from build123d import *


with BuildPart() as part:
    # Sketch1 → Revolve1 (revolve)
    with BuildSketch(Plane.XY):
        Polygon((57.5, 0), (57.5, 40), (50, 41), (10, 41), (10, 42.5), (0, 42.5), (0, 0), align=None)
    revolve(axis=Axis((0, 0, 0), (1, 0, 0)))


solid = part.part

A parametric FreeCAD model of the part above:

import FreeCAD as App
import Part
import Sketcher
Q = App.Units.Quantity

doc = App.newDocument("Part")
body = doc.addObject("PartDesign::Body", "Body")

# Sketch on XY plane
sketch1 = body.newObject("Sketcher::SketchObject", "Sketch")
sketch1.AttachmentSupport = (doc.getObject("XY_Plane"), [""])
sketch1.MapMode = "FlatFace"
sketch1.addGeometry([
    Part.LineSegment(App.Vector(57.5, 0, 0), App.Vector(57.5, 40, 0)),  # 0
    Part.LineSegment(App.Vector(57.5, 40, 0), App.Vector(50, 41, 0)),  # 1
    Part.LineSegment(App.Vector(50, 41, 0), App.Vector(10, 41, 0)),  # 2
    Part.LineSegment(App.Vector(10, 41, 0), App.Vector(10, 42.5, 0)),  # 3
    Part.LineSegment(App.Vector(10, 42.5, 0), App.Vector(0, 42.5, 0)),  # 4
    Part.LineSegment(App.Vector(0, 42.5, 0), App.Vector(0, 0, 0)),  # 5
    Part.LineSegment(App.Vector(0, 0, 0), App.Vector(57.5, 0, 0)),  # 6
], False)
sketch1.addConstraint([
    Sketcher.Constraint("Coincident", 0, 2, 1, 1),
    Sketcher.Constraint("Coincident", 1, 2, 2, 1),
    Sketcher.Constraint("Coincident", 2, 2, 3, 1),
    Sketcher.Constraint("Coincident", 3, 2, 4, 1),
    Sketcher.Constraint("Coincident", 4, 2, 5, 1),
    Sketcher.Constraint("Coincident", 5, 2, 6, 1),
    Sketcher.Constraint("Coincident", 6, 2, 0, 1),
    Sketcher.Constraint("Vertical", 0),
    Sketcher.Constraint("Horizontal", 2),
    Sketcher.Constraint("Vertical", 3),
    Sketcher.Constraint("Horizontal", 4),
    Sketcher.Constraint("Vertical", 5),
    Sketcher.Constraint("Horizontal", 6),
    Sketcher.Constraint("Coincident", 5, 2, -1, 1),
    Sketcher.Constraint("Equal", 2, 0),
    Sketcher.Constraint("DistanceX", 2, 2, 2, 1, Q("40 mm")),
    Sketcher.Constraint("DistanceX", 4, 2, 4, 1, Q("10 mm")),
    Sketcher.Constraint("DistanceX", 6, 1, 6, 2, Q("57.5 mm")),
    Sketcher.Constraint("DistanceY", 3, 1, 3, 2, Q("1.5 mm")),
    Sketcher.Constraint("DistanceY", 5, 2, 5, 1, Q("42.5 mm")),
])
revolution = body.newObject("PartDesign::Revolution", "Revolution")
revolution.Profile = sketch1
revolution.ReferenceAxis = (sketch1, ["H_Axis"])
revolution.Angle = 360

doc.recompute()
